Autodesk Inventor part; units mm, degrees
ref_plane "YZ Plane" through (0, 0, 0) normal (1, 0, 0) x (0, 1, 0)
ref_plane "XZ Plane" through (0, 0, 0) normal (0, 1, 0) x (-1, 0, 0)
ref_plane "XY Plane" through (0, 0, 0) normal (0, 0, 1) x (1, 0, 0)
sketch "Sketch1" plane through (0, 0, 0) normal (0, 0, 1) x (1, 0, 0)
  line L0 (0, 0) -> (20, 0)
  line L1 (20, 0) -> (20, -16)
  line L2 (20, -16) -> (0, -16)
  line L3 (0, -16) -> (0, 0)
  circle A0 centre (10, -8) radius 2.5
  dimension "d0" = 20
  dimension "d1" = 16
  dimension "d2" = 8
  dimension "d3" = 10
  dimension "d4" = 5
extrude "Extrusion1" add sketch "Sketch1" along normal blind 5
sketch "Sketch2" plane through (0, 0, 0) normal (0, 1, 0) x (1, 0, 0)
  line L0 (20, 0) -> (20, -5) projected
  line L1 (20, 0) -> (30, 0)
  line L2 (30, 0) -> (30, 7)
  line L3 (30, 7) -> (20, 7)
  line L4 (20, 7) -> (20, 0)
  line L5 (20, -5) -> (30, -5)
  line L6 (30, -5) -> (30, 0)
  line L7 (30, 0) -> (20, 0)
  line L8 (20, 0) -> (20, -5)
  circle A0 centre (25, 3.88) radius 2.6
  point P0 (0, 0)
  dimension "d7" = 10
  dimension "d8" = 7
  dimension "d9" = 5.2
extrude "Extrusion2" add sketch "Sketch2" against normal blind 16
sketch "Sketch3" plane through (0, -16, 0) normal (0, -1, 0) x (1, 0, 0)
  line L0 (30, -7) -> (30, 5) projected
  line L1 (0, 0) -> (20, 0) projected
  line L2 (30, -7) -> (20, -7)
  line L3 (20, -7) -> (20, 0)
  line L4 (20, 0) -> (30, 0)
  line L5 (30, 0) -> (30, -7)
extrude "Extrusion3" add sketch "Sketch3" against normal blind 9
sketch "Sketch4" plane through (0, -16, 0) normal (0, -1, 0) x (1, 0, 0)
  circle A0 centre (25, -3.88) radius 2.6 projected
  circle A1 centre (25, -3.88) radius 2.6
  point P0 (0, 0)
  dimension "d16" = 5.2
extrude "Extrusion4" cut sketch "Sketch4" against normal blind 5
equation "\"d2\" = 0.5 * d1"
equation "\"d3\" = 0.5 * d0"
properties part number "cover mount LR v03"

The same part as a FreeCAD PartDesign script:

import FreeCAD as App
import Part
import Sketcher
from FreeCAD import Vector
Q = App.Units.Quantity

doc = App.newDocument("Part")
body = doc.addObject("PartDesign::Body", "Body")

# Sketch on XY plane
sketch1 = body.newObject("Sketcher::SketchObject", "Sketch")
sketch1.AttachmentSupport = (doc.getObject("XY_Plane"), [""])
sketch1.MapMode = "FlatFace"
sketch1.addGeometry(Part.LineSegment(Vector(20, 0, 0), Vector(0, 0, 0)), False)
sketch1.addGeometry(Part.LineSegment(Vector(0, 0, 0), Vector(0, -16, 0)), False)
sketch1.addGeometry(Part.LineSegment(Vector(0, -16, 0), Vector(20, -16, 0)), False)
sketch1.addGeometry(Part.LineSegment(Vector(20, -16, 0), Vector(20, 0, 0)), False)
sketch1.addGeometry(Part.Circle(Vector(10, -8, 0), Vector(0, 0, 1), 2.5), False)
sketch1.addConstraint(Sketcher.Constraint("Coincident", 0, 2, 1, 1))
sketch1.addConstraint(Sketcher.Constraint("Coincident", 1, 2, 2, 1))
sketch1.addConstraint(Sketcher.Constraint("Coincident", 2, 2, 3, 1))
sketch1.addConstraint(Sketcher.Constraint("Coincident", 3, 2, 0, 1))
sketch1.addConstraint(Sketcher.Constraint("Horizontal", 0))
sketch1.addConstraint(Sketcher.Constraint("Vertical", 1))
sketch1.addConstraint(Sketcher.Constraint("Horizontal", 2))
sketch1.addConstraint(Sketcher.Constraint("Vertical", 3))
sketch1.addConstraint(Sketcher.Constraint("Coincident", 0, 2, -1, 1))
sketch1.addConstraint(Sketcher.Constraint("Diameter", 4, Q("5 mm")))
sketch1.addConstraint(Sketcher.Constraint("DistanceX", 0, 2, 0, 1, Q("20 mm")))
sketch1.addConstraint(Sketcher.Constraint("DistanceY", 1, 2, 1, 1, Q("16 mm")))
sketch1.addConstraint(Sketcher.Constraint("DistanceX", -1, 1, 4, 3, Q("10 mm")))
sketch1.addConstraint(Sketcher.Constraint("DistanceY", 4, 3, -1, 1, Q("8 mm")))
pad1 = body.newObject("PartDesign::Pad", "Pad")
pad1.Profile = sketch1
pad1.Length = 5

# Sketch on XZ plane
sketch2 = body.newObject("Sketcher::SketchObject", "Sketch001")
sketch2.AttachmentSupport = (doc.getObject("XZ_Plane"), [""])
sketch2.MapMode = "FlatFace"
sketch2.addGeometry(Part.LineSegment(Vector(30, 5, 0), Vector(30, -7, 0)), False)
sketch2.addGeometry(Part.LineSegment(Vector(30, -7, 0), Vector(20, -7, 0)), False)
sketch2.addGeometry(Part.LineSegment(Vector(20, -7, 0), Vector(20, 5, 0)), False)
sketch2.addGeometry(Part.LineSegment(Vector(20, 5, 0), Vector(30, 5, 0)), False)
sketch2.addGeometry(Part.Circle(Vector(25, -3.9, 0), Vector(0, 0, 1), 2.6), False)
sketch2.addConstraint(Sketcher.Constraint("Coincident", 0, 2, 1, 1))
sketch2.addConstraint(Sketcher.Constraint("Coincident", 1, 2, 2, 1))
sketch2.addConstraint(Sketcher.Constraint("Coincident", 2, 2, 3, 1))
sketch2.addConstraint(Sketcher.Constraint("Coincident", 3, 2, 0, 1))
sketch2.addConstraint(Sketcher.Constraint("Vertical", 0))
sketch2.addConstraint(Sketcher.Constraint("Horizontal", 1))
sketch2.addConstraint(Sketcher.Constraint("Vertical", 2))
sketch2.addConstraint(Sketcher.Constraint("Horizontal", 3))
sketch2.addConstraint(Sketcher.Constraint("Diameter", 4, Q("5.2 mm")))
sketch2.addConstraint(Sketcher.Constraint("DistanceX", 1, 2, 1, 1, Q("10 mm")))
sketch2.addConstraint(Sketcher.Constraint("DistanceY", 0, 2, -1, 1, Q("7 mm")))
sketch2.addConstraint(Sketcher.Constraint("DistanceY", 0, 2, 0, 1, Q("12 mm")))
sketch2.addConstraint(Sketcher.Constraint("DistanceX", -1, 1, 4, 3, Q("25 mm")))
sketch2.addConstraint(Sketcher.Constraint("DistanceX", -1, 1, 0, 2, Q("30 mm")))
sketch2.addConstraint(Sketcher.Constraint("DistanceY", 4, 3, -1, 1, Q("3.88 mm")))
pad2 = body.newObject("PartDesign::Pad", "Pad001")
pad2.Profile = sketch2
pad2.Length = 16

# Sketch on XZ plane
sketch3 = body.newObject("Sketcher::SketchObject", "Sketch002")
sketch3.AttachmentSupport = (doc.getObject("XZ_Plane"), [""])
sketch3.MapMode = "FlatFace"
sketch3.AttachmentOffset = App.Placement(Vector(0, 0, 16), App.Rotation())
sketch3.addGeometry(Part.LineSegment(Vector(20, -7, 0), Vector(30, -7, 0)), False)
sketch3.addGeometry(Part.LineSegment(Vector(30, -7, 0), Vector(30, 0, 0)), False)
sketch3.addGeometry(Part.LineSegment(Vector(30, 0, 0), Vector(20, 0, 0)), False)
sketch3.addGeometry(Part.LineSegment(Vector(20, 0, 0), Vector(20, -7, 0)), False)
sketch3.addConstraint(Sketcher.Constraint("Coincident", 0, 2, 1, 1))
sketch3.addConstraint(Sketcher.Constraint("Coincident", 1, 2, 2, 1))
sketch3.addConstraint(Sketcher.Constraint("Coincident", 2, 2, 3, 1))
sketch3.addConstraint(Sketcher.Constraint("Coincident", 3, 2, 0, 1))
sketch3.addConstraint(Sketcher.Constraint("Horizontal", 0))
sketch3.addConstraint(Sketcher.Constraint("Vertical", 1))
sketch3.addConstraint(Sketcher.Constraint("Horizontal", 2))
sketch3.addConstraint(Sketcher.Constraint("Vertical", 3))
sketch3.addConstraint(Sketcher.Constraint("PointOnObject", 1, 2, -1))
sketch3.addConstraint(Sketcher.Constraint("DistanceX", 0, 1, 0, 2, Q("10 mm")))
sketch3.addConstraint(Sketcher.Constraint("DistanceY", 1, 1, 1, 2, Q("7 mm")))
sketch3.addConstraint(Sketcher.Constraint("DistanceX", -1, 1, 0, 2, Q("30 mm")))
pad3 = body.newObject("PartDesign::Pad", "Pad002")
pad3.Profile = sketch3
pad3.Length = 9
pad3.Reversed = True

# Sketch on XZ plane
sketch4 = body.newObject("Sketcher::SketchObject", "Sketch003")
sketch4.AttachmentSupport = (doc.getObject("XZ_Plane"), [""])
sketch4.MapMode = "FlatFace"
sketch4.AttachmentOffset = App.Placement(Vector(0, 0, 16), App.Rotation())
sketch4.addGeometry(Part.Circle(Vector(25, -3.9, 0), Vector(0, 0, 1), 2.6), False)
sketch4.addConstraint(Sketcher.Constraint("Diameter", 0, Q("5.2 mm")))
sketch4.addConstraint(Sketcher.Constraint("DistanceX", -1, 1, 0, 3, Q("25 mm")))
sketch4.addConstraint(Sketcher.Constraint("DistanceY", 0, 3, -1, 1, Q("3.88 mm")))
pocket1 = body.newObject("PartDesign::Pocket", "Pocket")
pocket1.Profile = sketch4
pocket1.Length = 5

doc.recompute()
